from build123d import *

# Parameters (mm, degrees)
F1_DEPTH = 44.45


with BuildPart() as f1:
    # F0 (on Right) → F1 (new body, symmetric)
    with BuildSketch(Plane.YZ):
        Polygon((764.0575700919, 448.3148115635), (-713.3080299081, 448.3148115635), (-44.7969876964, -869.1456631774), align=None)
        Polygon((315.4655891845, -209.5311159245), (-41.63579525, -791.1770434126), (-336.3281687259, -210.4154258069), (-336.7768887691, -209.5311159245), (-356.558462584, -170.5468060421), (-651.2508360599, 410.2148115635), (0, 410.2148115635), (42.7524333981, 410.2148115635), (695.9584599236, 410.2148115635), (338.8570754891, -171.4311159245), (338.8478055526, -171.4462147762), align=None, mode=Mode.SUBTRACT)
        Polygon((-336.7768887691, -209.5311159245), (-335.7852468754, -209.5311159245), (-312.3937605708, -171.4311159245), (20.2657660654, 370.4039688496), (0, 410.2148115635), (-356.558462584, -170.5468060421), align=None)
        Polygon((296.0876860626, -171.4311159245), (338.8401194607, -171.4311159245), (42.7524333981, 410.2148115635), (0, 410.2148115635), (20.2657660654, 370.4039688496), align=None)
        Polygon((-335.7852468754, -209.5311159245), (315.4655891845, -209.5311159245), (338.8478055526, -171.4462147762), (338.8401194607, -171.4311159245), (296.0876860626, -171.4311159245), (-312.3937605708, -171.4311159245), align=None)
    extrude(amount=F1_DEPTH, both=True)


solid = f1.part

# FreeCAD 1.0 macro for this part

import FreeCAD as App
import Part
import Sketcher
from FreeCAD import Vector
Q = App.Units.Quantity

doc = App.newDocument("Part")
body = doc.addObject("PartDesign::Body", "Body")

# Sketch on YZ plane
sketch1 = doc.addObject("Sketcher::SketchObject", "Sketch")
body.addObject(sketch1)
sketch1.AttachmentSupport = (doc.YZ_Plane, [""])
sketch1.MapMode = "FlatFace"
sketch1.addGeometry([
    Part.LineSegment(Vector(764.058, 448.315, 0), Vector(-713.308, 448.315, 0)),  # 0
    Part.LineSegment(Vector(-713.308, 448.315, 0), Vector(-44.797, -869.146, 0)),  # 1
    Part.LineSegment(Vector(-44.797, -869.146, 0), Vector(764.058, 448.315, 0)),  # 2
    Part.LineSegment(Vector(-651.251, 410.215, 0), Vector(0, 410.215, 0)),  # 3
    Part.LineSegment(Vector(0, 410.215, 0), Vector(-356.558, -170.547, 0)),  # 4
    Part.LineSegment(Vector(-356.558, -170.547, 0), Vector(-651.251, 410.215, 0)),  # 5
    Part.LineSegment(Vector(-312.394, -171.431, 0), Vector(20.266, 370.404, 0)),  # 6
    Part.LineSegment(Vector(20.266, 370.404, 0), Vector(296.088, -171.431, 0)),  # 7
    Part.LineSegment(Vector(296.088, -171.431, 0), Vector(-312.394, -171.431, 0)),  # 8
    Part.LineSegment(Vector(338.84, -171.431, 0), Vector(42.752, 410.215, 0)),  # 9
    Part.LineSegment(Vector(42.752, 410.215, 0), Vector(695.958, 410.215, 0)),  # 10
    Part.LineSegment(Vector(695.958, 410.215, 0), Vector(338.857, -171.431, 0)),  # 11
    Part.LineSegment(Vector(338.857, -171.431, 0), Vector(338.848, -171.446, 0)),  # 12
    Part.LineSegment(Vector(338.848, -171.446, 0), Vector(338.84, -171.431, 0)),  # 13
    Part.LineSegment(Vector(315.466, -209.531, 0), Vector(-41.636, -791.177, 0)),  # 14
    Part.LineSegment(Vector(-41.636, -791.177, 0), Vector(-336.328, -210.415, 0)),  # 15
    Part.LineSegment(Vector(-336.328, -210.415, 0), Vector(-336.777, -209.531, 0)),  # 16
    Part.LineSegment(Vector(-336.777, -209.531, 0), Vector(315.466, -209.531, 0)),  # 17
], False)
sketch1.addConstraint([
    Sketcher.Constraint("Coincident", 0, 2, 1, 1),
    Sketcher.Constraint("Coincident", 1, 2, 2, 1),
    Sketcher.Constraint("Coincident", 2, 2, 0, 1),
    Sketcher.Constraint("Coincident", 3, 2, 4, 1),
    Sketcher.Constraint("Coincident", 4, 2, 5, 1),
    Sketcher.Constraint("Coincident", 5, 2, 3, 1),
    Sketcher.Constraint("Coincident", 6, 2, 7, 1),
    Sketcher.Constraint("Coincident", 7, 2, 8, 1),
    Sketcher.Constraint("Coincident", 8, 2, 6, 1),
    Sketcher.Constraint("Coincident", 9, 2, 10, 1),
    Sketcher.Constraint("Coincident", 10, 2, 11, 1),
    Sketcher.Constraint("Coincident", 11, 2, 12, 1),
    Sketcher.Constraint("Coincident", 12, 2, 13, 1),
    Sketcher.Constraint("Coincident", 13, 2, 9, 1),
    Sketcher.Constraint("Coincident", 14, 2, 15, 1),
    Sketcher.Constraint("Coincident", 15, 2, 16, 1),
    Sketcher.Constraint("Coincident", 16, 2, 17, 1),
    Sketcher.Constraint("Coincident", 17, 2, 14, 1),
    Sketcher.Constraint("Horizontal", 0),
    Sketcher.Constraint("Horizontal", 3),
    Sketcher.Constraint("Horizontal", 8),
    Sketcher.Constraint("Horizontal", 10),
    Sketcher.Constraint("Horizontal", 17),
    Sketcher.Constraint("PointOnObject", 3, 2, -2),
    Sketcher.Constraint("Parallel", 2, 4),
    Sketcher.Constraint("Parallel", 1, 5),
    Sketcher.Constraint("Parallel", 4, 6),
    Sketcher.Constraint("Parallel", 7, 9),
    Sketcher.Constraint("Parallel", 6, 11),
    Sketcher.Constraint("Parallel", 11, 12),
    Sketcher.Constraint("Parallel", 9, 13),
    Sketcher.Constraint("Parallel", 11, 14),
    Sketcher.Constraint("Parallel", 5, 15),
    Sketcher.Constraint("Parallel", 15, 16),
    Sketcher.Constraint("Horizontal", 5, 2, 9, 2),
    Sketcher.Constraint("Horizontal", 8, 2, 11, 2),
    Sketcher.Constraint("Horizontal", 11, 2, 13, 2),
    Sketcher.Constraint("Equal", 11, 14),
    Sketcher.Constraint("Equal", 5, 15),
    Sketcher.Constraint("DistanceY", 3, 2, 0, 2, Q("1.5 in")),
    Sketcher.Constraint("DistanceY", 16, 2, 8, 2, Q("1.5 in")),
    Sketcher.Constraint("DistanceX", 0, 2, 0, 1, Q("58.164 in")),
    Sketcher.Constraint("Distance", 1, Q("58.164 in")),
    Sketcher.Constraint("Distance", 2, Q("60.864 in")),
    Sketcher.Constraint("DistanceX", 6, 2, 12, 2, Q("12.5426 in")),
    Sketcher.Constraint("DistanceX", 14, 2, 7, 2, Q("13.2962001 in")),
    Sketcher.Constraint("DistanceY", 12, 2, 11, 2, Q("0.015099 mm")),
    Sketcher.Constraint("DistanceX", 14, 2, 12, 2, Q("380.483601 mm")),
    Sketcher.Constraint("Distance", 7, Q("607.99917 mm")),
    Sketcher.Constraint("Distance", 9, Q("652.671359 mm")),
    Sketcher.Constraint("Distance", 16, Q("0.991642 mm")),
    Sketcher.Constraint("DistanceX", 0, 2, -1, 1, Q("713.30803 mm")),
    Sketcher.Constraint("DistanceY", -1, 1, 0, 2, Q("448.314812 mm")),
    Sketcher.Constraint("DistanceX", 8, 2, -1, 1, Q("312.393761 mm")),
])
pad1 = doc.addObject("PartDesign::Pad", "Pad")
body.addObject(pad1)
pad1.Profile = sketch1
pad1.Length = Q("3.5 in")
pad1.Midplane = True

doc.recompute()
